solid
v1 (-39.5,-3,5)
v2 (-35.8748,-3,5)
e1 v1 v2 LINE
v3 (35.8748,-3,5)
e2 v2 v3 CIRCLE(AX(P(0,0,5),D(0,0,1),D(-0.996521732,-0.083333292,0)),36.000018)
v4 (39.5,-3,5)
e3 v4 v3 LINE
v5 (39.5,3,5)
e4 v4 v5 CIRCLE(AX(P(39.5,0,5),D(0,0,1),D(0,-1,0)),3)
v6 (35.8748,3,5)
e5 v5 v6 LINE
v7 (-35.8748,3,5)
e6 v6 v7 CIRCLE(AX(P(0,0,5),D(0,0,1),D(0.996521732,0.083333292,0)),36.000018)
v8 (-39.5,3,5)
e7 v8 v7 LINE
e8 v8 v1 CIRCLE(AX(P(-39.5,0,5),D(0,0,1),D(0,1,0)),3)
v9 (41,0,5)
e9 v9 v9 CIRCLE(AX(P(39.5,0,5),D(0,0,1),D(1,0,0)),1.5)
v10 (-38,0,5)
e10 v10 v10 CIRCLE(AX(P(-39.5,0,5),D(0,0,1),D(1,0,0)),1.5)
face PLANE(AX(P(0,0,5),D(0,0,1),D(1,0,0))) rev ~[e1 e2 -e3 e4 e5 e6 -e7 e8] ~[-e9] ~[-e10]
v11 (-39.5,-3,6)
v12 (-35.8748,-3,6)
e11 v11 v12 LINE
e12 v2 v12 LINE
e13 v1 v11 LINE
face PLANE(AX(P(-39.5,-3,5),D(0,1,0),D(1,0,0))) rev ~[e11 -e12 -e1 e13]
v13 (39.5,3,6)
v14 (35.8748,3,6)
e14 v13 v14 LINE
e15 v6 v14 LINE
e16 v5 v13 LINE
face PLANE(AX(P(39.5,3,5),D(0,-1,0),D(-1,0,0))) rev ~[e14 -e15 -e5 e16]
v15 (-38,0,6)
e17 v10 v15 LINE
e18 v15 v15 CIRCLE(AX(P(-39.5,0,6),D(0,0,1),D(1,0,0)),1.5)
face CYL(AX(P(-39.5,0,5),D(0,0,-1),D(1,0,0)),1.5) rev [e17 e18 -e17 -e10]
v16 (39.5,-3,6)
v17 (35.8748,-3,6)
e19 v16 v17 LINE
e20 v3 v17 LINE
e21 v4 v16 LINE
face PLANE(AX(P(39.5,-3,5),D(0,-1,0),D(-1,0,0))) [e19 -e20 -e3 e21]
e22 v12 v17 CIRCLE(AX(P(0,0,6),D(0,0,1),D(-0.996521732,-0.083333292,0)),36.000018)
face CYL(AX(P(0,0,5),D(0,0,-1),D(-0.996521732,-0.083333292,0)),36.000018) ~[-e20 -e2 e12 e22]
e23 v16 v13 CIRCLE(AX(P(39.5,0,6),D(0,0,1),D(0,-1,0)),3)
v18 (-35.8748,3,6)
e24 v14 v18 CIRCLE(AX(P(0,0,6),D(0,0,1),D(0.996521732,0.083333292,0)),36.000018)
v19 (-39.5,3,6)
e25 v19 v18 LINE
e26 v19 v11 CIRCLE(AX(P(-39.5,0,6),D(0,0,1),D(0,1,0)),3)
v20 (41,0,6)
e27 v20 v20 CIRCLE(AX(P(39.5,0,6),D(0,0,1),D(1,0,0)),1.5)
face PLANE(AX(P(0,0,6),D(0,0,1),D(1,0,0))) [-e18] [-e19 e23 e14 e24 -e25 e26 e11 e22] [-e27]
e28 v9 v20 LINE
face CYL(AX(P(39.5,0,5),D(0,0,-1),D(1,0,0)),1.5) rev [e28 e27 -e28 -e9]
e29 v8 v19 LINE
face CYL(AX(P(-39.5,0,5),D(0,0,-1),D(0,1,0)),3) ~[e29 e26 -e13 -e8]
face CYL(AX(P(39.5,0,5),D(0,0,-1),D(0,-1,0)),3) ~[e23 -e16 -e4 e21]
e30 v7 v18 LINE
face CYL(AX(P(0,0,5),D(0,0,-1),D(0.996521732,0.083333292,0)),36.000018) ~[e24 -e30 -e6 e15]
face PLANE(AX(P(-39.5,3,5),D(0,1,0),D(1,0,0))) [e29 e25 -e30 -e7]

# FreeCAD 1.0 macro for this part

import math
import FreeCAD as App
import Part
import Sketcher

doc = App.newDocument("Part")
body = doc.addObject("PartDesign::Body", "Body")

sketch1 = body.newObject("Sketcher::SketchObject", "Sketch")
sketch1.AttachmentSupport = (doc.getObject("XY_Plane"), [""])
sketch1.MapMode = "FlatFace"
sketch1.AttachmentOffset = App.Placement(App.Vector(0, 0, 5), App.Rotation())
sketch1.addGeometry([
    Part.LineSegment(App.Vector(-35.9, 3, 0), App.Vector(-39.5, 3, 0)),
    Part.ArcOfCircle(Part.Circle(App.Vector(-39.5, 0, 0), App.Vector(0, 0, 1), 3), math.radians(90), math.radians(270)),
    Part.LineSegment(App.Vector(-39.5, -3, 0), App.Vector(-35.9, -3, 0)),
    Part.ArcOfCircle(Part.Circle(App.Vector(0, 0, 0), App.Vector(0, 0, 1), 36), math.radians(-175), math.radians(-5)),
    Part.LineSegment(App.Vector(35.9, -3, 0), App.Vector(39.5, -3, 0)),
    Part.ArcOfCircle(Part.Circle(App.Vector(39.5, 0, 0), App.Vector(0, 0, 1), 3), math.radians(-90), math.radians(90)),
    Part.LineSegment(App.Vector(39.5, 3, 0), App.Vector(35.9, 3, 0)),
    Part.ArcOfCircle(Part.Circle(App.Vector(0, 0, 0), App.Vector(0, 0, 1), 36), math.radians(5), math.radians(175)),
    Part.Circle(App.Vector(-39.5, 0, 0), App.Vector(0, 0, 1), 1.5),
    Part.Circle(App.Vector(39.5, 0, 0), App.Vector(0, 0, 1), 1.5),
], False)
sketch1.addConstraint([
    Sketcher.Constraint("Tangent", 0, 2, 1, 1),
    Sketcher.Constraint("Tangent", 1, 2, 2, 1),
    Sketcher.Constraint("Coincident", 2, 2, 3, 1),
    Sketcher.Constraint("Coincident", 3, 2, 4, 1),
    Sketcher.Constraint("Tangent", 4, 2, 5, 1),
    Sketcher.Constraint("Tangent", 5, 2, 6, 1),
    Sketcher.Constraint("Coincident", 6, 2, 7, 1),
    Sketcher.Constraint("Coincident", 7, 2, 0, 1),
    Sketcher.Constraint("Horizontal", 0),
    Sketcher.Constraint("Horizontal", 2),
    Sketcher.Constraint("Horizontal", 4),
    Sketcher.Constraint("Horizontal", 6),
    Sketcher.Constraint("Coincident", 3, 3, -1, 1),
    Sketcher.Constraint("Coincident", 7, 3, -1, 1),
    Sketcher.Constraint("Coincident", 8, 3, 1, 3),
    Sketcher.Constraint("Coincident", 9, 3, 5, 3),
    Sketcher.Constraint("Equal", 1, 5),
    Sketcher.Constraint("Equal", 3, 7),
    Sketcher.Constraint("Equal", 8, 9),
    Sketcher.Constraint("Symmetric", 1, 3, 5, 3, -1, 1),
    Sketcher.Constraint("PointOnObject", 1, 3, -1),
    Sketcher.Constraint("Diameter", 8, 3.0),
    Sketcher.Constraint("Radius", 1, 3.0),
    Sketcher.Constraint("Radius", 3, 36.0),
    Sketcher.Constraint("DistanceX", 1, 3, 5, 3, 79.0),
])
pad1 = body.newObject("PartDesign::Pad", "Pad")
pad1.Profile = sketch1
pad1.Length = 1

doc.recompute()
